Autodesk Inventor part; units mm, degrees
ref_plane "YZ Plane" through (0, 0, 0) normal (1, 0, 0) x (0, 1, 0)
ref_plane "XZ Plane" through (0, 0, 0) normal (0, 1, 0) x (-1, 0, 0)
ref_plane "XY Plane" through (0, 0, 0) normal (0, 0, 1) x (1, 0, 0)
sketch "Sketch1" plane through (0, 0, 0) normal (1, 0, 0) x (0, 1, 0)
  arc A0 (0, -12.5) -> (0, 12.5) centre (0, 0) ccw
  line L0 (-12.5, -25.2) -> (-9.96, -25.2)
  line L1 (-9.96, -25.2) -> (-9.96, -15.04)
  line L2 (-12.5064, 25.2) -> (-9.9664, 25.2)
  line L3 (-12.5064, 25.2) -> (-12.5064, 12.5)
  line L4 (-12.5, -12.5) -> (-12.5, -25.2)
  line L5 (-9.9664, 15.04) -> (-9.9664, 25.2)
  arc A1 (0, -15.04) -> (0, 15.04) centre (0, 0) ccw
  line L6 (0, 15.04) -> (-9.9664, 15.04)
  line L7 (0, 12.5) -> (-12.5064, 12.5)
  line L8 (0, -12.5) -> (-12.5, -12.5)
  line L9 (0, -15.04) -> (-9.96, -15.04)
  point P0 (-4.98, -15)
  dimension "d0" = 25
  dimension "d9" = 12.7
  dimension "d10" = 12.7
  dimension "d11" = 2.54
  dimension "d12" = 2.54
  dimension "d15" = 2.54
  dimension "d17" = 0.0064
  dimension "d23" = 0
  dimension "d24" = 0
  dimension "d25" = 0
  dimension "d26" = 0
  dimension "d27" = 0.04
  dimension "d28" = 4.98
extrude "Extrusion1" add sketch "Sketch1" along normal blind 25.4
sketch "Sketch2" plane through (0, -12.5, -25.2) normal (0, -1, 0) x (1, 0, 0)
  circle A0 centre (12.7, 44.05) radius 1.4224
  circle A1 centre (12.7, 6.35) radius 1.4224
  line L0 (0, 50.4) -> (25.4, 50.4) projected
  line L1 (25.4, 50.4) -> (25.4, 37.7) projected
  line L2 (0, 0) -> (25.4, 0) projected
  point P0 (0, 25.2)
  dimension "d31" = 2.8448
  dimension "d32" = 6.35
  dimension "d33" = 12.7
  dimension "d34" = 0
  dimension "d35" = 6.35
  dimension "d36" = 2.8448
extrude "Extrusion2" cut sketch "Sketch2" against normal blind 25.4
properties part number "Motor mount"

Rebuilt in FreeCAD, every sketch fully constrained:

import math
import FreeCAD as App
import Part
import Sketcher
from FreeCAD import Vector
Q = App.Units.Quantity

doc = App.newDocument("Part")
body = doc.addObject("PartDesign::Body", "Body")

sketch1 = doc.addObject("Sketcher::SketchObject", "Sketch")
body.addObject(sketch1)
sketch1.AttachmentSupport = (doc.YZ_Plane, [""])
sketch1.MapMode = "FlatFace"
sketch1.addGeometry([
    Part.ArcOfCircle(Part.Circle(Vector(0, 0, 0), Vector(0, 0, 1), 12.5), math.radians(-90), math.radians(90)),
    Part.LineSegment(Vector(0, -12.5, 0), Vector(-12.5, -12.5, 0)),
    Part.LineSegment(Vector(-12.5, -12.5, 0), Vector(-12.5, -25.2, 0)),
    Part.LineSegment(Vector(-12.5, -25.2, 0), Vector(-9.96, -25.2, 0)),
    Part.LineSegment(Vector(-9.96, -25.2, 0), Vector(-9.96, -15.04, 0)),
    Part.LineSegment(Vector(-9.96, -15.04, 0), Vector(0, -15.04, 0)),
    Part.ArcOfCircle(Part.Circle(Vector(0, 0, 0), Vector(0, 0, 1), 15.04), math.radians(-90), math.radians(90)),
    Part.LineSegment(Vector(0, 15.04, 0), Vector(-9.9664, 15.04, 0)),
    Part.LineSegment(Vector(-9.9664, 15.04, 0), Vector(-9.9664, 25.2, 0)),
    Part.LineSegment(Vector(-9.9664, 25.2, 0), Vector(-12.5064, 25.2, 0)),
    Part.LineSegment(Vector(-12.5064, 25.2, 0), Vector(-12.5064, 12.5, 0)),
    Part.LineSegment(Vector(-12.5064, 12.5, 0), Vector(0, 12.5, 0)),
], False)
sketch1.addConstraint([
    Sketcher.Constraint("Tangent", 0, 1, 1, 1),
    Sketcher.Constraint("Coincident", 1, 2, 2, 1),
    Sketcher.Constraint("Coincident", 2, 2, 3, 1),
    Sketcher.Constraint("Coincident", 3, 2, 4, 1),
    Sketcher.Constraint("Coincident", 4, 2, 5, 1),
    Sketcher.Constraint("Tangent", 5, 2, 6, 1),
    Sketcher.Constraint("Tangent", 6, 2, 7, 1),
    Sketcher.Constraint("Coincident", 7, 2, 8, 1),
    Sketcher.Constraint("Coincident", 8, 2, 9, 1),
    Sketcher.Constraint("Coincident", 9, 2, 10, 1),
    Sketcher.Constraint("Coincident", 10, 2, 11, 1),
    Sketcher.Constraint("Tangent", 11, 2, 0, 2),
    Sketcher.Constraint("Horizontal", 1),
    Sketcher.Constraint("Vertical", 2),
    Sketcher.Constraint("Horizontal", 3),
    Sketcher.Constraint("Vertical", 4),
    Sketcher.Constraint("Horizontal", 5),
    Sketcher.Constraint("Horizontal", 7),
    Sketcher.Constraint("Vertical", 8),
    Sketcher.Constraint("Horizontal", 9),
    Sketcher.Constraint("Vertical", 10),
    Sketcher.Constraint("Horizontal", 11),
    Sketcher.Constraint("Coincident", 0, 3, -1, 1),
    Sketcher.Constraint("Coincident", 6, 3, -1, 1),
    Sketcher.Constraint("Equal", 3, 9),
    Sketcher.Constraint("Equal", 4, 8),
    Sketcher.Constraint("DistanceX", 3, 1, 3, 2, Q("0.1 in")),
    Sketcher.Constraint("DistanceY", 2, 2, 2, 1, Q("0.5 in")),
    Sketcher.Constraint("DistanceY", 4, 2, 1, 2, Q("0.1 in")),
    Sketcher.Constraint("Radius", 0, Q("12.5 mm")),
    Sketcher.Constraint("DistanceX", 1, 2, 1, 1, Q("12.5 mm")),
    Sketcher.Constraint("DistanceX", 7, 2, 7, 1, Q("9.9664 mm")),
])
pad1 = doc.addObject("PartDesign::Pad", "Pad")
body.addObject(pad1)
pad1.Profile = sketch1
pad1.Length = Q("1 in")

sketch2 = doc.addObject("Sketcher::SketchObject", "Sketch001")
body.addObject(sketch2)
sketch2.AttachmentSupport = (doc.XZ_Plane, [""])
sketch2.MapMode = "FlatFace"
sketch2.AttachmentOffset = App.Placement(Vector(0, 0, 12.5), App.Rotation())
sketch2.addGeometry([
    Part.Circle(Vector(12.7, 18.85, 0), Vector(0, 0, 1), 1.4224),
    Part.Circle(Vector(12.7, -18.85, 0), Vector(0, 0, 1), 1.4224),
], False)
sketch2.addConstraint([
    Sketcher.Constraint("Equal", 0, 1),
    Sketcher.Constraint("Symmetric", 0, 3, 1, 3, -1),
    Sketcher.Constraint("Diameter", 0, Q("0.112 in")),
    Sketcher.Constraint("DistanceX", -1, 1, 0, 3, Q("0.5 in")),
    Sketcher.Constraint("DistanceY", -1, 1, 0, 3, Q("18.85 mm")),
])
pocket1 = doc.addObject("PartDesign::Pocket", "Pocket")
body.addObject(pocket1)
pocket1.Profile = sketch2
pocket1.Length = Q("1 in")

doc.recompute()
